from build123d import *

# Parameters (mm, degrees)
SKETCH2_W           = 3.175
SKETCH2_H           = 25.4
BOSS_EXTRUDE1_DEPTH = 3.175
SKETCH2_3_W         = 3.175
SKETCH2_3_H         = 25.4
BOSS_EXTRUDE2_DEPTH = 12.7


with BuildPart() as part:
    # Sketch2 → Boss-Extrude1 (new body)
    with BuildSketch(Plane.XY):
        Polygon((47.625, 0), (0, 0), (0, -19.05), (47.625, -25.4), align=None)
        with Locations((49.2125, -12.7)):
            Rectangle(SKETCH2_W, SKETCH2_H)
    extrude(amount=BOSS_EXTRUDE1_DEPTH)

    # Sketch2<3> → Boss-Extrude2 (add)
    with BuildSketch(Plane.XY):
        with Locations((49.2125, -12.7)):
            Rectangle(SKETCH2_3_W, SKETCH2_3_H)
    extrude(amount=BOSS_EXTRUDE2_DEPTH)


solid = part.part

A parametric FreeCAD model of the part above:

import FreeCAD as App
import Part
import Sketcher

V = App.Vector
Q = App.Units.Quantity

doc = App.newDocument("Part")
body = doc.addObject("PartDesign::Body", "Body")

sketch1 = body.newObject("Sketcher::SketchObject", "Sketch")
sketch1.AttachmentSupport = (doc.getObject("XY_Plane"), [""])
sketch1.MapMode = "FlatFace"
sketch1.addGeometry(Part.LineSegment(V(0, 0, 0), V(0, -19.1, 0)), False)
sketch1.addGeometry(Part.LineSegment(V(0, -19.1, 0), V(47.6, -25.4, 0)), False)
sketch1.addGeometry(Part.LineSegment(V(47.6, -25.4, 0), V(50.8, -25.4, 0)), False)
sketch1.addGeometry(Part.LineSegment(V(50.8, -25.4, 0), V(50.8, 0, 0)), False)
sketch1.addGeometry(Part.LineSegment(V(50.8, 0, 0), V(0, 0, 0)), False)
sketch1.addConstraint(Sketcher.Constraint("Coincident", 0, 2, 1, 1))
sketch1.addConstraint(Sketcher.Constraint("Coincident", 1, 2, 2, 1))
sketch1.addConstraint(Sketcher.Constraint("Coincident", 2, 2, 3, 1))
sketch1.addConstraint(Sketcher.Constraint("Coincident", 3, 2, 4, 1))
sketch1.addConstraint(Sketcher.Constraint("Coincident", 4, 2, 0, 1))
sketch1.addConstraint(Sketcher.Constraint("Vertical", 0))
sketch1.addConstraint(Sketcher.Constraint("Horizontal", 2))
sketch1.addConstraint(Sketcher.Constraint("Vertical", 3))
sketch1.addConstraint(Sketcher.Constraint("Horizontal", 4))
sketch1.addConstraint(Sketcher.Constraint("Coincident", 4, 2, -1, 1))
sketch1.addConstraint(Sketcher.Constraint("DistanceX", 4, 2, 4, 1, Q("2 in")))
sketch1.addConstraint(Sketcher.Constraint("DistanceY", 3, 1, 3, 2, Q("1 in")))
sketch1.addConstraint(Sketcher.Constraint("DistanceY", 0, 2, 0, 1, Q("0.75 in")))
sketch1.addConstraint(Sketcher.Constraint("DistanceX", 2, 1, 2, 2, Q("0.125 in")))
pad1 = body.newObject("PartDesign::Pad", "Pad")
pad1.Profile = sketch1
pad1.Length = Q("0.125 in")

sketch2 = body.newObject("Sketcher::SketchObject", "Sketch001")
sketch2.AttachmentSupport = (doc.getObject("XY_Plane"), [""])
sketch2.MapMode = "FlatFace"
sketch2.addGeometry(Part.LineSegment(V(47.6, 0, 0), V(47.6, -25.4, 0)), False)
sketch2.addGeometry(Part.LineSegment(V(47.6, -25.4, 0), V(50.8, -25.4, 0)), False)
sketch2.addGeometry(Part.LineSegment(V(50.8, -25.4, 0), V(50.8, 0, 0)), False)
sketch2.addGeometry(Part.LineSegment(V(50.8, 0, 0), V(47.6, 0, 0)), False)
sketch2.addConstraint(Sketcher.Constraint("Coincident", 0, 2, 1, 1))
sketch2.addConstraint(Sketcher.Constraint("Coincident", 1, 2, 2, 1))
sketch2.addConstraint(Sketcher.Constraint("Coincident", 2, 2, 3, 1))
sketch2.addConstraint(Sketcher.Constraint("Coincident", 3, 2, 0, 1))
sketch2.addConstraint(Sketcher.Constraint("Vertical", 0))
sketch2.addConstraint(Sketcher.Constraint("Horizontal", 1))
sketch2.addConstraint(Sketcher.Constraint("Vertical", 2))
sketch2.addConstraint(Sketcher.Constraint("Horizontal", 3))
sketch2.addConstraint(Sketcher.Constraint("PointOnObject", 2, 2, -1))
sketch2.addConstraint(Sketcher.Constraint("DistanceY", 0, 2, 0, 1, Q("1 in")))
sketch2.addConstraint(Sketcher.Constraint("DistanceX", -1, 1, 1, 2, Q("2 in")))
sketch2.addConstraint(Sketcher.Constraint("DistanceX", 1, 1, 1, 2, Q("0.125 in")))
pad2 = body.newObject("PartDesign::Pad", "Pad001")
pad2.Profile = sketch2
pad2.Length = Q("0.5 in")

doc.recompute()
